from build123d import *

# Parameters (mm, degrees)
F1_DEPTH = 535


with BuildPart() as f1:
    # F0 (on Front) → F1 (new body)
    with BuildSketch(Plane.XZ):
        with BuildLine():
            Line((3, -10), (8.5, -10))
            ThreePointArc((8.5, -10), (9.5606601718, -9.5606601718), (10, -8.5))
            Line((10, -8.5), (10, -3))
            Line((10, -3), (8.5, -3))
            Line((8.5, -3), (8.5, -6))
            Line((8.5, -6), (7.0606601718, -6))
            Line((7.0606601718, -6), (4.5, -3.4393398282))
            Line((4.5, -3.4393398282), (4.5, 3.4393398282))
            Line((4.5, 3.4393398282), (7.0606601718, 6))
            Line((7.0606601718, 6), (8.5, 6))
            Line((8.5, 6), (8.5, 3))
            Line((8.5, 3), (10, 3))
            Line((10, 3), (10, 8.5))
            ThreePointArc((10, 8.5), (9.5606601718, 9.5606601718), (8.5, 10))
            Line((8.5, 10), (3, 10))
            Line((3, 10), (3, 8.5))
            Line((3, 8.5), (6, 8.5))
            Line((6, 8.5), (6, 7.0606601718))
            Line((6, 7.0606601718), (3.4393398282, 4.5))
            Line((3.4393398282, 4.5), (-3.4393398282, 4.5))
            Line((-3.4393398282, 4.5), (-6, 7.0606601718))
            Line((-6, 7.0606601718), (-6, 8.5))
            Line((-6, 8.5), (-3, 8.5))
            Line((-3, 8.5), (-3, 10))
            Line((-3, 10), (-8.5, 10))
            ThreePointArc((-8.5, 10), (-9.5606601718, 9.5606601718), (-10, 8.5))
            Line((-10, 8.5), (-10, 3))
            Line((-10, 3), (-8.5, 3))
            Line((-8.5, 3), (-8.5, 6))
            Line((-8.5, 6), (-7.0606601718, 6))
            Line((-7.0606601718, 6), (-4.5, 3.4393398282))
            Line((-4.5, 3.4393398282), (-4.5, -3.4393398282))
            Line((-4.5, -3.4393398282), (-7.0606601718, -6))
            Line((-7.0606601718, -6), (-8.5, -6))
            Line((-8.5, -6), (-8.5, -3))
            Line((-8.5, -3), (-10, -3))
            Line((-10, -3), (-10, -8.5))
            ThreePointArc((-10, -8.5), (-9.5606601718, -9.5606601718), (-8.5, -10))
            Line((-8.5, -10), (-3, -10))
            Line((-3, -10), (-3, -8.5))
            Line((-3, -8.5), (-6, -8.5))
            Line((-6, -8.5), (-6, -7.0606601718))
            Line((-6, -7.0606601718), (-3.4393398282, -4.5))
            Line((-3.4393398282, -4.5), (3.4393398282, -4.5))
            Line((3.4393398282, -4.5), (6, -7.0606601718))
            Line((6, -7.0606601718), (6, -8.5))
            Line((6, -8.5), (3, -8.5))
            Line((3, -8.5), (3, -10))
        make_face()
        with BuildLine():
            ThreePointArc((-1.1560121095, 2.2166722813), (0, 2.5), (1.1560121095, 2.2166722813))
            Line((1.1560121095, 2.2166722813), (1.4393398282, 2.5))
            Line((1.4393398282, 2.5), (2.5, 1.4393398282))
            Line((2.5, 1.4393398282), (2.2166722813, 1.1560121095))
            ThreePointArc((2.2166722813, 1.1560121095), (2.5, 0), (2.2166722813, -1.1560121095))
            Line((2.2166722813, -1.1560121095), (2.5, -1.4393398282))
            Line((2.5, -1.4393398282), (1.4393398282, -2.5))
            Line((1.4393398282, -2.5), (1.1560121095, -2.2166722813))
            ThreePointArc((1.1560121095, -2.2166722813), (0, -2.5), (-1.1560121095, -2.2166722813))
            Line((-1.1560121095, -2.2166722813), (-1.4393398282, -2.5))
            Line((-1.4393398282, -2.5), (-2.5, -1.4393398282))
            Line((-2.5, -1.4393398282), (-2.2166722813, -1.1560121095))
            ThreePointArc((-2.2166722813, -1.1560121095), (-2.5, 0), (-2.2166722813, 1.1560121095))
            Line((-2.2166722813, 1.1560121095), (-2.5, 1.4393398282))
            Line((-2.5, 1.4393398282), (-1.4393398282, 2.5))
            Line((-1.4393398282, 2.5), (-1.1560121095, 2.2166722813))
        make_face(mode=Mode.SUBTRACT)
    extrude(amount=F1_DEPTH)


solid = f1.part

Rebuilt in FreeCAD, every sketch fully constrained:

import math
import FreeCAD as App
import Part
import Sketcher
from FreeCAD import Vector

doc = App.newDocument("Part")
body = doc.addObject("PartDesign::Body", "Body")

# Sketch on XZ plane
sketch1 = body.newObject("Sketcher::SketchObject", "Sketch")
sketch1.AttachmentSupport = (doc.getObject("XZ_Plane"), [""])
sketch1.MapMode = "FlatFace"
sketch1.addGeometry([
    Part.LineSegment(Vector(3, -10, 0), Vector(8.5, -10, 0)),  # 0
    Part.ArcOfCircle(Part.Circle(Vector(8.5, -8.5, 0), Vector(0, 0, 1), 1.5), math.radians(-90), math.radians(0)),  # 1
    Part.LineSegment(Vector(10, -8.5, 0), Vector(10, -3, 0)),  # 2
    Part.LineSegment(Vector(10, -3, 0), Vector(8.5, -3, 0)),  # 3
    Part.LineSegment(Vector(8.5, -3, 0), Vector(8.5, -6, 0)),  # 4
    Part.LineSegment(Vector(8.5, -6, 0), Vector(7.06, -6, 0)),  # 5
    Part.LineSegment(Vector(7.06, -6, 0), Vector(4.5, -3.44, 0)),  # 6
    Part.LineSegment(Vector(4.5, -3.44, 0), Vector(4.5, 3.44, 0)),  # 7
    Part.LineSegment(Vector(4.5, 3.44, 0), Vector(7.06, 6, 0)),  # 8
    Part.LineSegment(Vector(7.06, 6, 0), Vector(8.5, 6, 0)),  # 9
    Part.LineSegment(Vector(8.5, 6, 0), Vector(8.5, 3, 0)),  # 10
    Part.LineSegment(Vector(8.5, 3, 0), Vector(10, 3, 0)),  # 11
    Part.LineSegment(Vector(10, 3, 0), Vector(10, 8.5, 0)),  # 12
    Part.ArcOfCircle(Part.Circle(Vector(8.5, 8.5, 0), Vector(0, 0, 1), 1.5), math.radians(0), math.radians(90)),  # 13
    Part.LineSegment(Vector(8.5, 10, 0), Vector(3, 10, 0)),  # 14
    Part.LineSegment(Vector(3, 10, 0), Vector(3, 8.5, 0)),  # 15
    Part.LineSegment(Vector(3, 8.5, 0), Vector(6, 8.5, 0)),  # 16
    Part.LineSegment(Vector(6, 8.5, 0), Vector(6, 7.06, 0)),  # 17
    Part.LineSegment(Vector(6, 7.06, 0), Vector(3.44, 4.5, 0)),  # 18
    Part.LineSegment(Vector(3.44, 4.5, 0), Vector(-3.44, 4.5, 0)),  # 19
    Part.LineSegment(Vector(-3.44, 4.5, 0), Vector(-6, 7.06, 0)),  # 20
    Part.LineSegment(Vector(-6, 7.06, 0), Vector(-6, 8.5, 0)),  # 21
    Part.LineSegment(Vector(-6, 8.5, 0), Vector(-3, 8.5, 0)),  # 22
    Part.LineSegment(Vector(-3, 8.5, 0), Vector(-3, 10, 0)),  # 23
    Part.LineSegment(Vector(-3, 10, 0), Vector(-8.5, 10, 0)),  # 24
    Part.ArcOfCircle(Part.Circle(Vector(-8.5, 8.5, 0), Vector(0, 0, 1), 1.5), math.radians(90), math.radians(180)),  # 25
    Part.LineSegment(Vector(-10, 8.5, 0), Vector(-10, 3, 0)),  # 26
    Part.LineSegment(Vector(-10, 3, 0), Vector(-8.5, 3, 0)),  # 27
    Part.LineSegment(Vector(-8.5, 3, 0), Vector(-8.5, 6, 0)),  # 28
    Part.LineSegment(Vector(-8.5, 6, 0), Vector(-7.06, 6, 0)),  # 29
    Part.LineSegment(Vector(-7.06, 6, 0), Vector(-4.5, 3.44, 0)),  # 30
    Part.LineSegment(Vector(-4.5, 3.44, 0), Vector(-4.5, -3.44, 0)),  # 31
    Part.LineSegment(Vector(-4.5, -3.44, 0), Vector(-7.06, -6, 0)),  # 32
    Part.LineSegment(Vector(-7.06, -6, 0), Vector(-8.5, -6, 0)),  # 33
    Part.LineSegment(Vector(-8.5, -6, 0), Vector(-8.5, -3, 0)),  # 34
    Part.LineSegment(Vector(-8.5, -3, 0), Vector(-10, -3, 0)),  # 35
    Part.LineSegment(Vector(-10, -3, 0), Vector(-10, -8.5, 0)),  # 36
    Part.ArcOfCircle(Part.Circle(Vector(-8.5, -8.5, 0), Vector(0, 0, 1), 1.5), math.radians(180), math.radians(270)),  # 37
    Part.LineSegment(Vector(-8.5, -10, 0), Vector(-3, -10, 0)),  # 38
    Part.LineSegment(Vector(-3, -10, 0), Vector(-3, -8.5, 0)),  # 39
    Part.LineSegment(Vector(-3, -8.5, 0), Vector(-6, -8.5, 0)),  # 40
    Part.LineSegment(Vector(-6, -8.5, 0), Vector(-6, -7.06, 0)),  # 41
    Part.LineSegment(Vector(-6, -7.06, 0), Vector(-3.44, -4.5, 0)),  # 42
    Part.LineSegment(Vector(-3.44, -4.5, 0), Vector(3.44, -4.5, 0)),  # 43
    Part.LineSegment(Vector(3.44, -4.5, 0), Vector(6, -7.06, 0)),  # 44
    Part.LineSegment(Vector(6, -7.06, 0), Vector(6, -8.5, 0)),  # 45
    Part.LineSegment(Vector(6, -8.5, 0), Vector(3, -8.5, 0)),  # 46
    Part.LineSegment(Vector(3, -8.5, 0), Vector(3, -10, 0)),  # 47
    Part.LineSegment(Vector(-1.44, 2.5, 0), Vector(-1.16, 2.22, 0)),  # 48
    Part.ArcOfCircle(Part.Circle(Vector(0, 0, 0), Vector(0, 0, 1), 2.5), math.radians(62), math.radians(118)),  # 49
    Part.LineSegment(Vector(1.16, 2.22, 0), Vector(1.44, 2.5, 0)),  # 50
    Part.LineSegment(Vector(1.44, 2.5, 0), Vector(2.5, 1.44, 0)),  # 51
    Part.LineSegment(Vector(2.5, 1.44, 0), Vector(2.22, 1.16, 0)),  # 52
    Part.ArcOfCircle(Part.Circle(Vector(0, 0, 0), Vector(0, 0, 1), 2.5), math.radians(-28), math.radians(28)),  # 53
    Part.LineSegment(Vector(2.22, -1.16, 0), Vector(2.5, -1.44, 0)),  # 54
    Part.LineSegment(Vector(2.5, -1.44, 0), Vector(1.44, -2.5, 0)),  # 55
    Part.LineSegment(Vector(1.44, -2.5, 0), Vector(1.16, -2.22, 0)),  # 56
    Part.ArcOfCircle(Part.Circle(Vector(0, 0, 0), Vector(0, 0, 1), 2.5), math.radians(-118), math.radians(-62)),  # 57
    Part.LineSegment(Vector(-1.16, -2.22, 0), Vector(-1.44, -2.5, 0)),  # 58
    Part.LineSegment(Vector(-1.44, -2.5, 0), Vector(-2.5, -1.44, 0)),  # 59
    Part.LineSegment(Vector(-2.5, -1.44, 0), Vector(-2.22, -1.16, 0)),  # 60
    Part.ArcOfCircle(Part.Circle(Vector(0, 0, 0), Vector(0, 0, 1), 2.5), math.radians(152), math.radians(208)),  # 61
    Part.LineSegment(Vector(-2.22, 1.16, 0), Vector(-2.5, 1.44, 0)),  # 62
    Part.LineSegment(Vector(-2.5, 1.44, 0), Vector(-1.44, 2.5, 0)),  # 63
], False)
sketch1.addConstraint([
    Sketcher.Constraint("Tangent", 0, 2, 1, 1),
    Sketcher.Constraint("Tangent", 1, 2, 2, 1),
    Sketcher.Constraint("Coincident", 2, 2, 3, 1),
    Sketcher.Constraint("Coincident", 3, 2, 4, 1),
    Sketcher.Constraint("Coincident", 4, 2, 5, 1),
    Sketcher.Constraint("Coincident", 5, 2, 6, 1),
    Sketcher.Constraint("Coincident", 6, 2, 7, 1),
    Sketcher.Constraint("Coincident", 7, 2, 8, 1),
    Sketcher.Constraint("Coincident", 8, 2, 9, 1),
    Sketcher.Constraint("Coincident", 9, 2, 10, 1),
    Sketcher.Constraint("Coincident", 10, 2, 11, 1),
    Sketcher.Constraint("Coincident", 11, 2, 12, 1),
    Sketcher.Constraint("Tangent", 12, 2, 13, 1),
    Sketcher.Constraint("Tangent", 13, 2, 14, 1),
    Sketcher.Constraint("Coincident", 14, 2, 15, 1),
    Sketcher.Constraint("Coincident", 15, 2, 16, 1),
    Sketcher.Constraint("Coincident", 16, 2, 17, 1),
    Sketcher.Constraint("Coincident", 17, 2, 18, 1),
    Sketcher.Constraint("Coincident", 18, 2, 19, 1),
    Sketcher.Constraint("Coincident", 19, 2, 20, 1),
    Sketcher.Constraint("Coincident", 20, 2, 21, 1),
    Sketcher.Constraint("Coincident", 21, 2, 22, 1),
    Sketcher.Constraint("Coincident", 22, 2, 23, 1),
    Sketcher.Constraint("Coincident", 23, 2, 24, 1),
    Sketcher.Constraint("Tangent", 24, 2, 25, 1),
    Sketcher.Constraint("Tangent", 25, 2, 26, 1),
    Sketcher.Constraint("Coincident", 26, 2, 27, 1),
    Sketcher.Constraint("Coincident", 27, 2, 28, 1),
    Sketcher.Constraint("Coincident", 28, 2, 29, 1),
    Sketcher.Constraint("Coincident", 29, 2, 30, 1),
    Sketcher.Constraint("Coincident", 30, 2, 31, 1),
    Sketcher.Constraint("Coincident", 31, 2, 32, 1),
    Sketcher.Constraint("Coincident", 32, 2, 33, 1),
    Sketcher.Constraint("Coincident", 33, 2, 34, 1),
    Sketcher.Constraint("Coincident", 34, 2, 35, 1),
    Sketcher.Constraint("Coincident", 35, 2, 36, 1),
    Sketcher.Constraint("Tangent", 36, 2, 37, 1),
    Sketcher.Constraint("Tangent", 37, 2, 38, 1),
    Sketcher.Constraint("Coincident", 38, 2, 39, 1),
    Sketcher.Constraint("Coincident", 39, 2, 40, 1),
    Sketcher.Constraint("Coincident", 40, 2, 41, 1),
    Sketcher.Constraint("Coincident", 41, 2, 42, 1),
    Sketcher.Constraint("Coincident", 42, 2, 43, 1),
    Sketcher.Constraint("Coincident", 43, 2, 44, 1),
    Sketcher.Constraint("Coincident", 44, 2, 45, 1),
    Sketcher.Constraint("Coincident", 45, 2, 46, 1),
    Sketcher.Constraint("Coincident", 46, 2, 47, 1),
    Sketcher.Constraint("Coincident", 47, 2, 0, 1),
    Sketcher.Constraint("Coincident", 48, 2, 49, 2),
    Sketcher.Constraint("Coincident", 49, 1, 50, 1),
    Sketcher.Constraint("Coincident", 50, 2, 51, 1),
    Sketcher.Constraint("Coincident", 51, 2, 52, 1),
    Sketcher.Constraint("Coincident", 52, 2, 53, 2),
    Sketcher.Constraint("Coincident", 53, 1, 54, 1),
    Sketcher.Constraint("Coincident", 54, 2, 55, 1),
    Sketcher.Constraint("Coincident", 55, 2, 56, 1),
    Sketcher.Constraint("Coincident", 56, 2, 57, 2),
    Sketcher.Constraint("Coincident", 57, 1, 58, 1),
    Sketcher.Constraint("Coincident", 58, 2, 59, 1),
    Sketcher.Constraint("Coincident", 59, 2, 60, 1),
    Sketcher.Constraint("Coincident", 60, 2, 61, 2),
    Sketcher.Constraint("Coincident", 61, 1, 62, 1),
    Sketcher.Constraint("Coincident", 62, 2, 63, 1),
    Sketcher.Constraint("Coincident", 63, 2, 48, 1),
    Sketcher.Constraint("Horizontal", 0),
    Sketcher.Constraint("Vertical", 2),
    Sketcher.Constraint("Horizontal", 3),
    Sketcher.Constraint("Vertical", 4),
    Sketcher.Constraint("Horizontal", 5),
    Sketcher.Constraint("Vertical", 7),
    Sketcher.Constraint("Horizontal", 9),
    Sketcher.Constraint("Vertical", 10),
    Sketcher.Constraint("Horizontal", 11),
    Sketcher.Constraint("Vertical", 12),
    Sketcher.Constraint("Horizontal", 14),
    Sketcher.Constraint("Vertical", 15),
    Sketcher.Constraint("Horizontal", 16),
    Sketcher.Constraint("Vertical", 17),
    Sketcher.Constraint("Horizontal", 19),
    Sketcher.Constraint("Vertical", 21),
    Sketcher.Constraint("Horizontal", 22),
    Sketcher.Constraint("Vertical", 23),
    Sketcher.Constraint("Horizontal", 24),
    Sketcher.Constraint("Vertical", 26),
    Sketcher.Constraint("Horizontal", 27),
    Sketcher.Constraint("Vertical", 28),
    Sketcher.Constraint("Horizontal", 29),
    Sketcher.Constraint("Vertical", 31),
    Sketcher.Constraint("Horizontal", 33),
    Sketcher.Constraint("Vertical", 34),
    Sketcher.Constraint("Horizontal", 35),
    Sketcher.Constraint("Vertical", 36),
    Sketcher.Constraint("Horizontal", 38),
    Sketcher.Constraint("Vertical", 39),
    Sketcher.Constraint("Horizontal", 40),
    Sketcher.Constraint("Vertical", 41),
    Sketcher.Constraint("Horizontal", 43),
    Sketcher.Constraint("Vertical", 45),
    Sketcher.Constraint("Horizontal", 46),
    Sketcher.Constraint("Vertical", 47),
    Sketcher.Constraint("Coincident", 49, 3, -1, 1),
    Sketcher.Constraint("Coincident", 53, 3, -1, 1),
    Sketcher.Constraint("Coincident", 57, 3, -1, 1),
    Sketcher.Constraint("Coincident", 61, 3, -1, 1),
    Sketcher.Constraint("Equal", 1, 13),
    Sketcher.Constraint("Equal", 13, 25),
    Sketcher.Constraint("Equal", 25, 37),
    Sketcher.Constraint("Equal", 49, 53),
    Sketcher.Constraint("Equal", 53, 57),
    Sketcher.Constraint("Equal", 57, 61),
    Sketcher.Constraint("Symmetric", 1, 3, 25, 3, -1, 1),
    Sketcher.Constraint("Symmetric", 13, 3, 37, 3, -1, 1),
    Sketcher.Constraint("Symmetric", 3, 2, 27, 2, -1, 1),
    Sketcher.Constraint("Symmetric", 5, 2, 29, 2, -1, 1),
    Sketcher.Constraint("Symmetric", 6, 2, 30, 2, -1, 1),
    Sketcher.Constraint("Symmetric", 8, 2, 32, 2, -1, 1),
    Sketcher.Constraint("Symmetric", 10, 2, 34, 2, -1, 1),
    Sketcher.Constraint("Symmetric", 15, 2, 39, 2, -1, 1),
    Sketcher.Constraint("Symmetric", 17, 2, 41, 2, -1, 1),
    Sketcher.Constraint("Symmetric", 18, 2, 42, 2, -1, 1),
    Sketcher.Constraint("Symmetric", 20, 2, 44, 2, -1, 1),
    Sketcher.Constraint("Symmetric", 22, 2, 46, 2, -1, 1),
    Sketcher.Constraint("Symmetric", 50, 2, 58, 2, -1, 1),
    Sketcher.Constraint("Symmetric", 51, 2, 59, 2, -1, 1),
    Sketcher.Constraint("Symmetric", 54, 2, 62, 2, -1, 1),
    Sketcher.Constraint("Symmetric", 55, 2, 63, 2, -1, 1),
    Sketcher.Constraint("Symmetric", 13, 3, 25, 3, -2),
    Sketcher.Constraint("Symmetric", 17, 2, 20, 2, -2),
    Sketcher.Constraint("Symmetric", 15, 2, 22, 2, -2),
    Sketcher.Constraint("Symmetric", 10, 2, 27, 2, -2),
    Sketcher.Constraint("Symmetric", 8, 2, 29, 2, -2),
    Sketcher.Constraint("Symmetric", 55, 2, 58, 2, -2),
    Sketcher.Constraint("Symmetric", 54, 2, 59, 2, -2),
    Sketcher.Constraint("Perpendicular", 6, 8),
    Sketcher.Constraint("Parallel", 8, 18),
    Sketcher.Constraint("Perpendicular", 18, 20),
    Sketcher.Constraint("Perpendicular", 30, 32),
    Sketcher.Constraint("Perpendicular", 42, 44),
    Sketcher.Constraint("Parallel", 44, 48),
    Sketcher.Constraint("Perpendicular", 48, 50),
    Sketcher.Constraint("Perpendicular", 50, 51),
    Sketcher.Constraint("Perpendicular", 51, 52),
    Sketcher.Constraint("Perpendicular", 52, 54),
    Sketcher.Constraint("Perpendicular", 54, 55),
    Sketcher.Constraint("Perpendicular", 55, 56),
    Sketcher.Constraint("Perpendicular", 56, 58),
    Sketcher.Constraint("Perpendicular", 59, 60),
    Sketcher.Constraint("Perpendicular", 60, 62),
    Sketcher.Constraint("Horizontal", 12, 2, 15, 2),
    Sketcher.Constraint("Vertical", 0, 2, 3, 2),
    Sketcher.Constraint("Equal", 38, 2),
    Sketcher.Constraint("Equal", 46, 4),
    Sketcher.Constraint("Equal", 43, 7),
    Sketcher.Constraint("Equal", 33, 17),
    Sketcher.Constraint("Equal", 8, 18),
    Sketcher.Constraint("Equal", 50, 52),
    Sketcher.Constraint("Radius", 1, 1.5),
    Sketcher.Constraint("Radius", 49, 2.5),
    Sketcher.Constraint("DistanceX", 16, 1, 16, 2, 3.0),
    Sketcher.Constraint("DistanceX", 0, 1, 0, 2, 5.5),
    Sketcher.Constraint("DistanceY", 0, 2, -1, 1, 10.0),
    Sketcher.Constraint("Distance", 51, 1.5),
    Sketcher.Constraint("DistanceX", -1, 1, 6, 2, 4.5),
    Sketcher.Constraint("DistanceY", -1, 1, 50, 2, 2.5),
    Sketcher.Constraint("DistanceX", 5, 2, 5, 1, 1.43934),
])
pad1 = body.newObject("PartDesign::Pad", "Pad")
pad1.Profile = sketch1
pad1.Length = 535

doc.recompute()
